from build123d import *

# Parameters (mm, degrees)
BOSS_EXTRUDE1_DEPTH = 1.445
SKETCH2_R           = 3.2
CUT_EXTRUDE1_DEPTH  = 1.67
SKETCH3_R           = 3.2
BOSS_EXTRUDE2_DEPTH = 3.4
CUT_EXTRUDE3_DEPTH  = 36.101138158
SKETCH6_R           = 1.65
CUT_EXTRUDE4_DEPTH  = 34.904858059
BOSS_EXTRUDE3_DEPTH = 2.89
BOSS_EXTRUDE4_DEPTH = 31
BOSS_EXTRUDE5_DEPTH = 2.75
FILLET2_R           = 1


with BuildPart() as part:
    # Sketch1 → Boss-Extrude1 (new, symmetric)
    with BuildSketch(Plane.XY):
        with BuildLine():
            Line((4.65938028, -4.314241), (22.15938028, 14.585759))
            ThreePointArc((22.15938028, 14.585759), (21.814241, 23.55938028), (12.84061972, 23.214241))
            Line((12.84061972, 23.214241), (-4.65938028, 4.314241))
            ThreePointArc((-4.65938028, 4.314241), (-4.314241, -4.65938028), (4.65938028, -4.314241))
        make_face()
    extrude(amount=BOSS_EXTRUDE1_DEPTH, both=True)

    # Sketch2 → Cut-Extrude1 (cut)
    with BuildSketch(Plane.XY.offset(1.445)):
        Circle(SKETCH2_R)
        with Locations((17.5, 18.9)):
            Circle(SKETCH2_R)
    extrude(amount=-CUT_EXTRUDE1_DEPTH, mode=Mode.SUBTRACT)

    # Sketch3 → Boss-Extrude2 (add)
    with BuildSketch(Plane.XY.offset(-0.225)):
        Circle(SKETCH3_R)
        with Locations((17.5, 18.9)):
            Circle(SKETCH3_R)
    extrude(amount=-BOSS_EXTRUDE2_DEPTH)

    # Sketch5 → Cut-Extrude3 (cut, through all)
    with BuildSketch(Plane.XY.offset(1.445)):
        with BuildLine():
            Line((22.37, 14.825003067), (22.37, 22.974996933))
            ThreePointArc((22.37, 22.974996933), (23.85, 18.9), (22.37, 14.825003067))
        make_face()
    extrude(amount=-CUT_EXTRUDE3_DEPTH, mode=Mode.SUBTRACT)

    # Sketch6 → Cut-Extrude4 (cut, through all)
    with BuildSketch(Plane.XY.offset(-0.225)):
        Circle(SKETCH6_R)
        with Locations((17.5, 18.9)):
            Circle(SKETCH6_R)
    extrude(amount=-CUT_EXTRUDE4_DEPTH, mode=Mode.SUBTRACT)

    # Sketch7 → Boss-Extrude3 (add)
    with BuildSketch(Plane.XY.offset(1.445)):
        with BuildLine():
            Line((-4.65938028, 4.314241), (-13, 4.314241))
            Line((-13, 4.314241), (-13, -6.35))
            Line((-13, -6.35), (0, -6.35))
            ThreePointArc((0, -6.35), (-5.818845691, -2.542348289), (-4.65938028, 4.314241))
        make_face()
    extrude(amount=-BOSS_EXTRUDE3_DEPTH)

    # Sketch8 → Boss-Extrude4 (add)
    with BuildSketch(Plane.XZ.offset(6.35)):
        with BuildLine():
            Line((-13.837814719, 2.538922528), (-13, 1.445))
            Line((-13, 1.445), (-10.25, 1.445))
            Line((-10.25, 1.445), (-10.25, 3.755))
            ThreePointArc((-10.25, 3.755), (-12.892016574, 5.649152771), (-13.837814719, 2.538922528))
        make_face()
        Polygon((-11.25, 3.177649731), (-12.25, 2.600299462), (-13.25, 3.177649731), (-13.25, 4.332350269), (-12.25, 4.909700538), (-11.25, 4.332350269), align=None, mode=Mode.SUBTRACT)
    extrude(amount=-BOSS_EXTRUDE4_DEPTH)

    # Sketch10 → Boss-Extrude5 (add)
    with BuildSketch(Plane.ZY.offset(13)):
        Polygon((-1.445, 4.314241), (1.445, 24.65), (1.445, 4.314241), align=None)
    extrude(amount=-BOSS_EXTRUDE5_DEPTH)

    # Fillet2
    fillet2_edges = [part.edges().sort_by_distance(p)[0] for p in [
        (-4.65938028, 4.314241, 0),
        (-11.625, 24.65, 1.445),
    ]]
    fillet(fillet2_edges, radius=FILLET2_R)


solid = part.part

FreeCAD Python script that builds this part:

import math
import FreeCAD as App
import Part
import Sketcher

V = App.Vector
Q = App.Units.Quantity


def edges_at(feature, points):
    """Names of the edges that pass closest to the given points."""
    edges = feature.Shape.Edges
    near = lambda p: min(range(len(edges)), key=lambda i: edges[i].distToShape(Part.Vertex(*p))[0])
    return sorted({f"Edge{near(p) + 1}" for p in points})

doc = App.newDocument("Part")
body = doc.addObject("PartDesign::Body", "Body")

sketch1 = doc.addObject("Sketcher::SketchObject", "Sketch")
body.addObject(sketch1)
sketch1.AttachmentSupport = (doc.XY_Plane, [""])
sketch1.MapMode = "FlatFace"
sketch1.addGeometry(Part.LineSegment(V(4.65938, -4.314241, 0), V(22.15938, 14.585759, 0)), False)
sketch1.addGeometry(Part.ArcOfCircle(Part.Circle(V(17.5, 18.9, 0), V(0, 0, 1), 6.35), math.radians(-42.797402), math.radians(137.202598)), False)
sketch1.addGeometry(Part.LineSegment(V(12.84062, 23.214241, 0), V(-4.65938, 4.314241, 0)), False)
sketch1.addGeometry(Part.ArcOfCircle(Part.Circle(V(0, 0, 0), V(0, 0, 1), 6.35), math.radians(137.202598), math.radians(317.202598)), False)
sketch1.addConstraint(Sketcher.Constraint("Tangent", 0, 2, 1, 1))
sketch1.addConstraint(Sketcher.Constraint("Tangent", 1, 2, 2, 1))
sketch1.addConstraint(Sketcher.Constraint("Tangent", 2, 2, 3, 1))
sketch1.addConstraint(Sketcher.Constraint("Tangent", 3, 2, 0, 1))
sketch1.addConstraint(Sketcher.Constraint("Coincident", 3, 3, -1, 1))
sketch1.addConstraint(Sketcher.Constraint("Equal", 1, 3))
sketch1.addConstraint(Sketcher.Constraint("Radius", 1, 6.35))
sketch1.addConstraint(Sketcher.Constraint("DistanceX", -1, 1, 1, 3, 17.5))
sketch1.addConstraint(Sketcher.Constraint("DistanceY", -1, 1, 1, 3, 18.9))
pad1 = doc.addObject("PartDesign::Pad", "Pad")
body.addObject(pad1)
pad1.Profile = sketch1
pad1.Length = 2.89
pad1.Midplane = True

sketch2 = doc.addObject("Sketcher::SketchObject", "Sketch001")
body.addObject(sketch2)
sketch2.AttachmentSupport = (doc.XY_Plane, [""])
sketch2.MapMode = "FlatFace"
sketch2.AttachmentOffset = App.Placement(V(0, 0, 1.445), App.Rotation())
sketch2.addGeometry(Part.Circle(V(0, 0, 0), V(0, 0, 1), 3.2), False)
sketch2.addGeometry(Part.Circle(V(17.5, 18.9, 0), V(0, 0, 1), 3.2), False)
sketch2.addConstraint(Sketcher.Constraint("Coincident", 0, 3, -1, 1))
sketch2.addConstraint(Sketcher.Constraint("Equal", 0, 1))
sketch2.addConstraint(Sketcher.Constraint("Diameter", 0, 6.4))
sketch2.addConstraint(Sketcher.Constraint("DistanceX", -1, 1, 1, 3, 17.5))
sketch2.addConstraint(Sketcher.Constraint("DistanceY", -1, 1, 1, 3, 18.9))
pocket1 = doc.addObject("PartDesign::Pocket", "Pocket")
body.addObject(pocket1)
pocket1.Profile = sketch2
pocket1.Length = 1.67

sketch3 = doc.addObject("Sketcher::SketchObject", "Sketch002")
body.addObject(sketch3)
sketch3.AttachmentSupport = (doc.XY_Plane, [""])
sketch3.MapMode = "FlatFace"
sketch3.AttachmentOffset = App.Placement(V(0, 0, -0.225), App.Rotation())
sketch3.addGeometry(Part.Circle(V(0, 0, 0), V(0, 0, 1), 3.2), False)
sketch3.addGeometry(Part.Circle(V(17.5, 18.9, 0), V(0, 0, 1), 3.2), False)
sketch3.addConstraint(Sketcher.Constraint("Coincident", 0, 3, -1, 1))
sketch3.addConstraint(Sketcher.Constraint("Equal", 0, 1))
sketch3.addConstraint(Sketcher.Constraint("Diameter", 0, 6.4))
sketch3.addConstraint(Sketcher.Constraint("DistanceX", -1, 1, 1, 3, 17.5))
sketch3.addConstraint(Sketcher.Constraint("DistanceY", -1, 1, 1, 3, 18.9))
pad2 = doc.addObject("PartDesign::Pad", "Pad001")
body.addObject(pad2)
pad2.Profile = sketch3
pad2.Length = 3.4
pad2.Reversed = True

sketch4 = doc.addObject("Sketcher::SketchObject", "Sketch003")
body.addObject(sketch4)
sketch4.AttachmentSupport = (doc.XY_Plane, [""])
sketch4.MapMode = "FlatFace"
sketch4.AttachmentOffset = App.Placement(V(0, 0, 1.445), App.Rotation())
sketch4.addGeometry(Part.LineSegment(V(22.37, 22.974997, 0), V(22.37, 14.825003, 0)), False)
sketch4.addGeometry(Part.ArcOfCircle(Part.Circle(V(17.5, 18.9, 0), V(0, 0, 1), 6.35), math.radians(-39.921077), math.radians(39.921077)), False)
sketch4.addConstraint(Sketcher.Constraint("Coincident", 0, 1, 1, 2))
sketch4.addConstraint(Sketcher.Constraint("Coincident", 1, 1, 0, 2))
sketch4.addConstraint(Sketcher.Constraint("Vertical", 0))
sketch4.addConstraint(Sketcher.Constraint("Radius", 1, 6.35))
sketch4.addConstraint(Sketcher.Constraint("DistanceX", -1, 1, 1, 3, 17.5))
sketch4.addConstraint(Sketcher.Constraint("DistanceY", -1, 1, 1, 3, 18.9))
sketch4.addConstraint(Sketcher.Constraint("DistanceX", -1, 1, 0, 1, 22.37))
pocket2 = doc.addObject("PartDesign::Pocket", "Pocket001")
body.addObject(pocket2)
pocket2.Profile = sketch4
pocket2.Type = "ThroughAll"

sketch5 = doc.addObject("Sketcher::SketchObject", "Sketch004")
body.addObject(sketch5)
sketch5.AttachmentSupport = (doc.XY_Plane, [""])
sketch5.MapMode = "FlatFace"
sketch5.AttachmentOffset = App.Placement(V(0, 0, -0.225), App.Rotation())
sketch5.addGeometry(Part.Circle(V(0, 0, 0), V(0, 0, 1), 1.65), False)
sketch5.addGeometry(Part.Circle(V(17.5, 18.9, 0), V(0, 0, 1), 1.65), False)
sketch5.addConstraint(Sketcher.Constraint("Coincident", 0, 3, -1, 1))
sketch5.addConstraint(Sketcher.Constraint("Equal", 0, 1))
sketch5.addConstraint(Sketcher.Constraint("Diameter", 0, 3.3))
sketch5.addConstraint(Sketcher.Constraint("DistanceX", -1, 1, 1, 3, 17.5))
sketch5.addConstraint(Sketcher.Constraint("DistanceY", -1, 1, 1, 3, 18.9))
pocket3 = doc.addObject("PartDesign::Pocket", "Pocket002")
body.addObject(pocket3)
pocket3.Profile = sketch5
pocket3.Type = "ThroughAll"

sketch6 = doc.addObject("Sketcher::SketchObject", "Sketch005")
body.addObject(sketch6)
sketch6.AttachmentSupport = (doc.XY_Plane, [""])
sketch6.MapMode = "FlatFace"
sketch6.AttachmentOffset = App.Placement(V(0, 0, 1.445), App.Rotation())
sketch6.addGeometry(Part.LineSegment(V(-4.65938, 4.314241, 0), V(-13, 4.314241, 0)), False)
sketch6.addGeometry(Part.LineSegment(V(-13, 4.314241, 0), V(-13, -6.35, 0)), False)
sketch6.addGeometry(Part.LineSegment(V(-13, -6.35, 0), V(0, -6.35, 0)), False)
sketch6.addGeometry(Part.ArcOfCircle(Part.Circle(V(0, 0, 0), V(0, 0, 1), 6.35), math.radians(137.202598), math.radians(270)), False)
sketch6.addConstraint(Sketcher.Constraint("Coincident", 0, 2, 1, 1))
sketch6.addConstraint(Sketcher.Constraint("Coincident", 1, 2, 2, 1))
sketch6.addConstraint(Sketcher.Constraint("Tangent", 2, 2, 3, 2))
sketch6.addConstraint(Sketcher.Constraint("Coincident", 3, 1, 0, 1))
sketch6.addConstraint(Sketcher.Constraint("Horizontal", 0))
sketch6.addConstraint(Sketcher.Constraint("Vertical", 1))
sketch6.addConstraint(Sketcher.Constraint("Horizontal", 2))
sketch6.addConstraint(Sketcher.Constraint("Coincident", 3, 3, -1, 1))
sketch6.addConstraint(Sketcher.Constraint("DistanceX", 2, 1, 2, 2, 13.0))
sketch6.addConstraint(Sketcher.Constraint("Radius", 3, 6.35))
sketch6.addConstraint(Sketcher.Constraint("DistanceX", 0, 2, 0, 1, 8.34062))
pad3 = doc.addObject("PartDesign::Pad", "Pad002")
body.addObject(pad3)
pad3.Profile = sketch6
pad3.Length = 2.89
pad3.Reversed = True

sketch7 = doc.addObject("Sketcher::SketchObject", "Sketch006")
body.addObject(sketch7)
sketch7.AttachmentSupport = (doc.XZ_Plane, [""])
sketch7.MapMode = "FlatFace"
sketch7.AttachmentOffset = App.Placement(V(0, 0, 6.35), App.Rotation())
sketch7.addGeometry(Part.LineSegment(V(-13.837815, 2.538923, 0), V(-13, 1.445, 0)), False)
sketch7.addGeometry(Part.LineSegment(V(-13, 1.445, 0), V(-10.25, 1.445, 0)), False)
sketch7.addGeometry(Part.LineSegment(V(-10.25, 1.445, 0), V(-10.25, 3.755, 0)), False)
sketch7.addGeometry(Part.ArcOfCircle(Part.Circle(V(-12.25, 3.755, 0), V(0, 0, 1), 2), math.radians(0), math.radians(217.447826)), False)
sketch7.addGeometry(Part.LineSegment(V(-11.25, 4.33235, 0), V(-11.25, 3.17765, 0)), False)
sketch7.addGeometry(Part.LineSegment(V(-11.25, 3.17765, 0), V(-12.25, 2.600299, 0)), False)
sketch7.addGeometry(Part.LineSegment(V(-12.25, 2.600299, 0), V(-13.25, 3.17765, 0)), False)
sketch7.addGeometry(Part.LineSegment(V(-13.25, 3.17765, 0), V(-13.25, 4.33235, 0)), False)
sketch7.addGeometry(Part.LineSegment(V(-13.25, 4.33235, 0), V(-12.25, 4.909701, 0)), False)
sketch7.addGeometry(Part.LineSegment(V(-12.25, 4.909701, 0), V(-11.25, 4.33235, 0)), False)
sketch7.addConstraint(Sketcher.Constraint("Coincident", 0, 2, 1, 1))
sketch7.addConstraint(Sketcher.Constraint("Coincident", 1, 2, 2, 1))
sketch7.addConstraint(Sketcher.Constraint("Tangent", 2, 2, 3, 1))
sketch7.addConstraint(Sketcher.Constraint("Tangent", 3, 2, 0, 1))
sketch7.addConstraint(Sketcher.Constraint("Coincident", 4, 2, 5, 1))
sketch7.addConstraint(Sketcher.Constraint("Coincident", 5, 2, 6, 1))
sketch7.addConstraint(Sketcher.Constraint("Coincident", 6, 2, 7, 1))
sketch7.addConstraint(Sketcher.Constraint("Coincident", 7, 2, 8, 1))
sketch7.addConstraint(Sketcher.Constraint("Coincident", 8, 2, 9, 1))
sketch7.addConstraint(Sketcher.Constraint("Coincident", 9, 2, 4, 1))
sketch7.addConstraint(Sketcher.Constraint("Horizontal", 1))
sketch7.addConstraint(Sketcher.Constraint("Vertical", 2))
sketch7.addConstraint(Sketcher.Constraint("Vertical", 4))
sketch7.addConstraint(Sketcher.Constraint("Vertical", 7))
sketch7.addConstraint(Sketcher.Constraint("Parallel", 5, 8))
sketch7.addConstraint(Sketcher.Constraint("Parallel", 6, 9))
sketch7.addConstraint(Sketcher.Constraint("Horizontal", 4, 2, 6, 2))
sketch7.addConstraint(Sketcher.Constraint("Horizontal", 7, 2, 9, 2))
sketch7.addConstraint(Sketcher.Constraint("Vertical", 3, 3, 5, 2))
sketch7.addConstraint(Sketcher.Constraint("Vertical", 5, 2, 8, 2))
sketch7.addConstraint(Sketcher.Constraint("Radius", 3, 2.0))
sketch7.addConstraint(Sketcher.Constraint("Angle", 5, Q("-150 deg")))
sketch7.addConstraint(Sketcher.Constraint("DistanceX", 0, 2, -1, 1, 13.0))
sketch7.addConstraint(Sketcher.Constraint("DistanceX", 3, 3, 4, 2, 1.0))
sketch7.addConstraint(Sketcher.Constraint("DistanceX", 1, 1, 1, 2, 2.75))
sketch7.addConstraint(Sketcher.Constraint("DistanceY", 2, 1, 2, 2, 2.31))
sketch7.addConstraint(Sketcher.Constraint("DistanceY", 4, 2, 4, 1, 1.154701))
sketch7.addConstraint(Sketcher.Constraint("DistanceY", -1, 1, 3, 3, 3.755))
sketch7.addConstraint(Sketcher.Constraint("DistanceY", -1, 1, 5, 2, 2.600299))
pad4 = doc.addObject("PartDesign::Pad", "Pad003")
body.addObject(pad4)
pad4.Profile = sketch7
pad4.Length = 31
pad4.Reversed = True

sketch8 = doc.addObject("Sketcher::SketchObject", "Sketch007")
body.addObject(sketch8)
sketch8.AttachmentSupport = (doc.YZ_Plane, [""])
sketch8.MapMode = "FlatFace"
sketch8.AttachmentOffset = App.Placement(V(0, 0, -13), App.Rotation())
sketch8.addGeometry(Part.LineSegment(V(24.65, 1.445, 0), V(4.314241, -1.445, 0)), False)
sketch8.addGeometry(Part.LineSegment(V(4.314241, -1.445, 0), V(4.314241, 1.445, 0)), False)
sketch8.addGeometry(Part.LineSegment(V(4.314241, 1.445, 0), V(24.65, 1.445, 0)), False)
sketch8.addConstraint(Sketcher.Constraint("Coincident", 0, 2, 1, 1))
sketch8.addConstraint(Sketcher.Constraint("Coincident", 1, 2, 2, 1))
sketch8.addConstraint(Sketcher.Constraint("Coincident", 2, 2, 0, 1))
sketch8.addConstraint(Sketcher.Constraint("Vertical", 1))
sketch8.addConstraint(Sketcher.Constraint("Horizontal", 2))
sketch8.addConstraint(Sketcher.Constraint("DistanceY", 1, 1, 1, 2, 2.89))
sketch8.addConstraint(Sketcher.Constraint("DistanceX", -1, 1, 2, 2, 24.65))
sketch8.addConstraint(Sketcher.Constraint("DistanceY", 0, 2, -1, 1, 1.445))
sketch8.addConstraint(Sketcher.Constraint("DistanceX", 2, 1, 2, 2, 20.335759))
pad5 = doc.addObject("PartDesign::Pad", "Pad004")
body.addObject(pad5)
pad5.Profile = sketch8
pad5.Length = 2.75
doc.recompute()

fillet = doc.addObject("PartDesign::Fillet", "Fillet")
body.addObject(fillet)
fillet.Base = (pad5, edges_at(pad5, [(-4.659, 4.314, 0), (-11.625, 24.65, 1.445)]))
fillet.Radius = 1

doc.recompute()
